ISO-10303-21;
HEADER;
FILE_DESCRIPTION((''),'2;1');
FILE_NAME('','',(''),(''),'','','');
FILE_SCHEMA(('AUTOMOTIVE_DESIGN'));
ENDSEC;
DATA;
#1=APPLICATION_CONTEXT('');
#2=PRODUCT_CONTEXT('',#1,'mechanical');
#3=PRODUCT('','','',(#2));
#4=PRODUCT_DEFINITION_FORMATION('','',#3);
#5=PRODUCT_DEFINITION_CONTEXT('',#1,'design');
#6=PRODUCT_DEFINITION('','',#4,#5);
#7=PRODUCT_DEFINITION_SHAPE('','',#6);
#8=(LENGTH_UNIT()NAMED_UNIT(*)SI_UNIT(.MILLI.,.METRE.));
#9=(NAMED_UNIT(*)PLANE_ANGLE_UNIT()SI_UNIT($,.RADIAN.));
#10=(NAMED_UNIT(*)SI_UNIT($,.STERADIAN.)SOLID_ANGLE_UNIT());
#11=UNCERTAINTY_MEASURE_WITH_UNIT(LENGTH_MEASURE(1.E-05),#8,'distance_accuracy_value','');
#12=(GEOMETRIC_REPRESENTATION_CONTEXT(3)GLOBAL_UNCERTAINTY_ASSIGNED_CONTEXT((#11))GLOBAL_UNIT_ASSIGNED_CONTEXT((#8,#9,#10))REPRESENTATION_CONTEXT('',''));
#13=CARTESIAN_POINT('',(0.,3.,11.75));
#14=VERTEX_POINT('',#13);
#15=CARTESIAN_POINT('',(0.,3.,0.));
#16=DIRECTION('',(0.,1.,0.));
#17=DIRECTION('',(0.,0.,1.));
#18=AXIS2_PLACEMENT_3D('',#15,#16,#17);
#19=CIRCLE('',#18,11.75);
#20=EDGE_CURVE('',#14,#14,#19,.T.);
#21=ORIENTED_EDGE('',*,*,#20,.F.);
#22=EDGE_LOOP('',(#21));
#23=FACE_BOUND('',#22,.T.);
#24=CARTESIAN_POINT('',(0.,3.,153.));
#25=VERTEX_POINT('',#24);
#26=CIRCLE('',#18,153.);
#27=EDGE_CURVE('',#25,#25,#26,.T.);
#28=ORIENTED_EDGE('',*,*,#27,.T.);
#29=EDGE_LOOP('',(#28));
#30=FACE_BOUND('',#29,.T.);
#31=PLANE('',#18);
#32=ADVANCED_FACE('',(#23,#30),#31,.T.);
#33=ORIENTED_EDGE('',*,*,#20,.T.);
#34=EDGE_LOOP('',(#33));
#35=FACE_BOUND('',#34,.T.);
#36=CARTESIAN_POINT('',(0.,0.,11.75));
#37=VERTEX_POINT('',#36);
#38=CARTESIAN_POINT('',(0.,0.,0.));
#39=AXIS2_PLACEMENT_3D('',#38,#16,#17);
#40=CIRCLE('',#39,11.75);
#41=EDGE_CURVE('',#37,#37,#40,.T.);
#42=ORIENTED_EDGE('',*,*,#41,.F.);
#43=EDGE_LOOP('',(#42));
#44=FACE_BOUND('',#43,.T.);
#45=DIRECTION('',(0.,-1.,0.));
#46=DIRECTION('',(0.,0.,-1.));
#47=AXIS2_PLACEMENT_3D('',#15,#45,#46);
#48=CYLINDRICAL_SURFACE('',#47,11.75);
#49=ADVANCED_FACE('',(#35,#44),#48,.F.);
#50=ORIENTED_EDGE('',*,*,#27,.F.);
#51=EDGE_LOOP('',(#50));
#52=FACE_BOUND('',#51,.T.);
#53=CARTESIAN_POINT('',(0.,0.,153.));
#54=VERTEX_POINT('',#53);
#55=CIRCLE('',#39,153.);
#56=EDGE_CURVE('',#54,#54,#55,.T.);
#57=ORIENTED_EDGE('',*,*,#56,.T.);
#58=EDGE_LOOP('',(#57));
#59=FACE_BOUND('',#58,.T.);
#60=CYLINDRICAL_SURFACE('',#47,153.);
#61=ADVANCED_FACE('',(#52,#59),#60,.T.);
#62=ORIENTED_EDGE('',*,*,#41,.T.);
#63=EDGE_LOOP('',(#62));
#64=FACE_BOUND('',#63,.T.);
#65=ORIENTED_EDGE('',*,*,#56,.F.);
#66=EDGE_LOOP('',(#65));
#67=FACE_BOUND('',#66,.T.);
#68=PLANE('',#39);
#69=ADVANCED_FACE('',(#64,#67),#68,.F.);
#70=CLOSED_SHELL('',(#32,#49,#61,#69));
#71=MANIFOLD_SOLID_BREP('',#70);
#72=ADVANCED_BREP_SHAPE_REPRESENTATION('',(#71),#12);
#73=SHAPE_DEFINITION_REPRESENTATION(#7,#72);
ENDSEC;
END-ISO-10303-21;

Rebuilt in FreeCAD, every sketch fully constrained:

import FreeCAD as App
import Part
import Sketcher

V = App.Vector

doc = App.newDocument("Part")
body = doc.addObject("PartDesign::Body", "Body")

sketch1 = doc.addObject("Sketcher::SketchObject", "Sketch")
body.addObject(sketch1)
sketch1.AttachmentSupport = (doc.XZ_Plane, [""])
sketch1.MapMode = "FlatFace"
sketch1.addGeometry(Part.Circle(V(0, 0, 0), V(0, 0, 1), 153), False)
sketch1.addGeometry(Part.Circle(V(0, 0, 0), V(0, 0, 1), 11.75), False)
sketch1.addConstraint(Sketcher.Constraint("Coincident", 0, 3, -1, 1))
sketch1.addConstraint(Sketcher.Constraint("Coincident", 1, 3, -1, 1))
sketch1.addConstraint(Sketcher.Constraint("Diameter", 0, 306.0))
sketch1.addConstraint(Sketcher.Constraint("Diameter", 1, 23.5))
pad1 = doc.addObject("PartDesign::Pad", "Pad")
body.addObject(pad1)
pad1.Profile = sketch1
pad1.Length = 3
pad1.Reversed = True

doc.recompute()
